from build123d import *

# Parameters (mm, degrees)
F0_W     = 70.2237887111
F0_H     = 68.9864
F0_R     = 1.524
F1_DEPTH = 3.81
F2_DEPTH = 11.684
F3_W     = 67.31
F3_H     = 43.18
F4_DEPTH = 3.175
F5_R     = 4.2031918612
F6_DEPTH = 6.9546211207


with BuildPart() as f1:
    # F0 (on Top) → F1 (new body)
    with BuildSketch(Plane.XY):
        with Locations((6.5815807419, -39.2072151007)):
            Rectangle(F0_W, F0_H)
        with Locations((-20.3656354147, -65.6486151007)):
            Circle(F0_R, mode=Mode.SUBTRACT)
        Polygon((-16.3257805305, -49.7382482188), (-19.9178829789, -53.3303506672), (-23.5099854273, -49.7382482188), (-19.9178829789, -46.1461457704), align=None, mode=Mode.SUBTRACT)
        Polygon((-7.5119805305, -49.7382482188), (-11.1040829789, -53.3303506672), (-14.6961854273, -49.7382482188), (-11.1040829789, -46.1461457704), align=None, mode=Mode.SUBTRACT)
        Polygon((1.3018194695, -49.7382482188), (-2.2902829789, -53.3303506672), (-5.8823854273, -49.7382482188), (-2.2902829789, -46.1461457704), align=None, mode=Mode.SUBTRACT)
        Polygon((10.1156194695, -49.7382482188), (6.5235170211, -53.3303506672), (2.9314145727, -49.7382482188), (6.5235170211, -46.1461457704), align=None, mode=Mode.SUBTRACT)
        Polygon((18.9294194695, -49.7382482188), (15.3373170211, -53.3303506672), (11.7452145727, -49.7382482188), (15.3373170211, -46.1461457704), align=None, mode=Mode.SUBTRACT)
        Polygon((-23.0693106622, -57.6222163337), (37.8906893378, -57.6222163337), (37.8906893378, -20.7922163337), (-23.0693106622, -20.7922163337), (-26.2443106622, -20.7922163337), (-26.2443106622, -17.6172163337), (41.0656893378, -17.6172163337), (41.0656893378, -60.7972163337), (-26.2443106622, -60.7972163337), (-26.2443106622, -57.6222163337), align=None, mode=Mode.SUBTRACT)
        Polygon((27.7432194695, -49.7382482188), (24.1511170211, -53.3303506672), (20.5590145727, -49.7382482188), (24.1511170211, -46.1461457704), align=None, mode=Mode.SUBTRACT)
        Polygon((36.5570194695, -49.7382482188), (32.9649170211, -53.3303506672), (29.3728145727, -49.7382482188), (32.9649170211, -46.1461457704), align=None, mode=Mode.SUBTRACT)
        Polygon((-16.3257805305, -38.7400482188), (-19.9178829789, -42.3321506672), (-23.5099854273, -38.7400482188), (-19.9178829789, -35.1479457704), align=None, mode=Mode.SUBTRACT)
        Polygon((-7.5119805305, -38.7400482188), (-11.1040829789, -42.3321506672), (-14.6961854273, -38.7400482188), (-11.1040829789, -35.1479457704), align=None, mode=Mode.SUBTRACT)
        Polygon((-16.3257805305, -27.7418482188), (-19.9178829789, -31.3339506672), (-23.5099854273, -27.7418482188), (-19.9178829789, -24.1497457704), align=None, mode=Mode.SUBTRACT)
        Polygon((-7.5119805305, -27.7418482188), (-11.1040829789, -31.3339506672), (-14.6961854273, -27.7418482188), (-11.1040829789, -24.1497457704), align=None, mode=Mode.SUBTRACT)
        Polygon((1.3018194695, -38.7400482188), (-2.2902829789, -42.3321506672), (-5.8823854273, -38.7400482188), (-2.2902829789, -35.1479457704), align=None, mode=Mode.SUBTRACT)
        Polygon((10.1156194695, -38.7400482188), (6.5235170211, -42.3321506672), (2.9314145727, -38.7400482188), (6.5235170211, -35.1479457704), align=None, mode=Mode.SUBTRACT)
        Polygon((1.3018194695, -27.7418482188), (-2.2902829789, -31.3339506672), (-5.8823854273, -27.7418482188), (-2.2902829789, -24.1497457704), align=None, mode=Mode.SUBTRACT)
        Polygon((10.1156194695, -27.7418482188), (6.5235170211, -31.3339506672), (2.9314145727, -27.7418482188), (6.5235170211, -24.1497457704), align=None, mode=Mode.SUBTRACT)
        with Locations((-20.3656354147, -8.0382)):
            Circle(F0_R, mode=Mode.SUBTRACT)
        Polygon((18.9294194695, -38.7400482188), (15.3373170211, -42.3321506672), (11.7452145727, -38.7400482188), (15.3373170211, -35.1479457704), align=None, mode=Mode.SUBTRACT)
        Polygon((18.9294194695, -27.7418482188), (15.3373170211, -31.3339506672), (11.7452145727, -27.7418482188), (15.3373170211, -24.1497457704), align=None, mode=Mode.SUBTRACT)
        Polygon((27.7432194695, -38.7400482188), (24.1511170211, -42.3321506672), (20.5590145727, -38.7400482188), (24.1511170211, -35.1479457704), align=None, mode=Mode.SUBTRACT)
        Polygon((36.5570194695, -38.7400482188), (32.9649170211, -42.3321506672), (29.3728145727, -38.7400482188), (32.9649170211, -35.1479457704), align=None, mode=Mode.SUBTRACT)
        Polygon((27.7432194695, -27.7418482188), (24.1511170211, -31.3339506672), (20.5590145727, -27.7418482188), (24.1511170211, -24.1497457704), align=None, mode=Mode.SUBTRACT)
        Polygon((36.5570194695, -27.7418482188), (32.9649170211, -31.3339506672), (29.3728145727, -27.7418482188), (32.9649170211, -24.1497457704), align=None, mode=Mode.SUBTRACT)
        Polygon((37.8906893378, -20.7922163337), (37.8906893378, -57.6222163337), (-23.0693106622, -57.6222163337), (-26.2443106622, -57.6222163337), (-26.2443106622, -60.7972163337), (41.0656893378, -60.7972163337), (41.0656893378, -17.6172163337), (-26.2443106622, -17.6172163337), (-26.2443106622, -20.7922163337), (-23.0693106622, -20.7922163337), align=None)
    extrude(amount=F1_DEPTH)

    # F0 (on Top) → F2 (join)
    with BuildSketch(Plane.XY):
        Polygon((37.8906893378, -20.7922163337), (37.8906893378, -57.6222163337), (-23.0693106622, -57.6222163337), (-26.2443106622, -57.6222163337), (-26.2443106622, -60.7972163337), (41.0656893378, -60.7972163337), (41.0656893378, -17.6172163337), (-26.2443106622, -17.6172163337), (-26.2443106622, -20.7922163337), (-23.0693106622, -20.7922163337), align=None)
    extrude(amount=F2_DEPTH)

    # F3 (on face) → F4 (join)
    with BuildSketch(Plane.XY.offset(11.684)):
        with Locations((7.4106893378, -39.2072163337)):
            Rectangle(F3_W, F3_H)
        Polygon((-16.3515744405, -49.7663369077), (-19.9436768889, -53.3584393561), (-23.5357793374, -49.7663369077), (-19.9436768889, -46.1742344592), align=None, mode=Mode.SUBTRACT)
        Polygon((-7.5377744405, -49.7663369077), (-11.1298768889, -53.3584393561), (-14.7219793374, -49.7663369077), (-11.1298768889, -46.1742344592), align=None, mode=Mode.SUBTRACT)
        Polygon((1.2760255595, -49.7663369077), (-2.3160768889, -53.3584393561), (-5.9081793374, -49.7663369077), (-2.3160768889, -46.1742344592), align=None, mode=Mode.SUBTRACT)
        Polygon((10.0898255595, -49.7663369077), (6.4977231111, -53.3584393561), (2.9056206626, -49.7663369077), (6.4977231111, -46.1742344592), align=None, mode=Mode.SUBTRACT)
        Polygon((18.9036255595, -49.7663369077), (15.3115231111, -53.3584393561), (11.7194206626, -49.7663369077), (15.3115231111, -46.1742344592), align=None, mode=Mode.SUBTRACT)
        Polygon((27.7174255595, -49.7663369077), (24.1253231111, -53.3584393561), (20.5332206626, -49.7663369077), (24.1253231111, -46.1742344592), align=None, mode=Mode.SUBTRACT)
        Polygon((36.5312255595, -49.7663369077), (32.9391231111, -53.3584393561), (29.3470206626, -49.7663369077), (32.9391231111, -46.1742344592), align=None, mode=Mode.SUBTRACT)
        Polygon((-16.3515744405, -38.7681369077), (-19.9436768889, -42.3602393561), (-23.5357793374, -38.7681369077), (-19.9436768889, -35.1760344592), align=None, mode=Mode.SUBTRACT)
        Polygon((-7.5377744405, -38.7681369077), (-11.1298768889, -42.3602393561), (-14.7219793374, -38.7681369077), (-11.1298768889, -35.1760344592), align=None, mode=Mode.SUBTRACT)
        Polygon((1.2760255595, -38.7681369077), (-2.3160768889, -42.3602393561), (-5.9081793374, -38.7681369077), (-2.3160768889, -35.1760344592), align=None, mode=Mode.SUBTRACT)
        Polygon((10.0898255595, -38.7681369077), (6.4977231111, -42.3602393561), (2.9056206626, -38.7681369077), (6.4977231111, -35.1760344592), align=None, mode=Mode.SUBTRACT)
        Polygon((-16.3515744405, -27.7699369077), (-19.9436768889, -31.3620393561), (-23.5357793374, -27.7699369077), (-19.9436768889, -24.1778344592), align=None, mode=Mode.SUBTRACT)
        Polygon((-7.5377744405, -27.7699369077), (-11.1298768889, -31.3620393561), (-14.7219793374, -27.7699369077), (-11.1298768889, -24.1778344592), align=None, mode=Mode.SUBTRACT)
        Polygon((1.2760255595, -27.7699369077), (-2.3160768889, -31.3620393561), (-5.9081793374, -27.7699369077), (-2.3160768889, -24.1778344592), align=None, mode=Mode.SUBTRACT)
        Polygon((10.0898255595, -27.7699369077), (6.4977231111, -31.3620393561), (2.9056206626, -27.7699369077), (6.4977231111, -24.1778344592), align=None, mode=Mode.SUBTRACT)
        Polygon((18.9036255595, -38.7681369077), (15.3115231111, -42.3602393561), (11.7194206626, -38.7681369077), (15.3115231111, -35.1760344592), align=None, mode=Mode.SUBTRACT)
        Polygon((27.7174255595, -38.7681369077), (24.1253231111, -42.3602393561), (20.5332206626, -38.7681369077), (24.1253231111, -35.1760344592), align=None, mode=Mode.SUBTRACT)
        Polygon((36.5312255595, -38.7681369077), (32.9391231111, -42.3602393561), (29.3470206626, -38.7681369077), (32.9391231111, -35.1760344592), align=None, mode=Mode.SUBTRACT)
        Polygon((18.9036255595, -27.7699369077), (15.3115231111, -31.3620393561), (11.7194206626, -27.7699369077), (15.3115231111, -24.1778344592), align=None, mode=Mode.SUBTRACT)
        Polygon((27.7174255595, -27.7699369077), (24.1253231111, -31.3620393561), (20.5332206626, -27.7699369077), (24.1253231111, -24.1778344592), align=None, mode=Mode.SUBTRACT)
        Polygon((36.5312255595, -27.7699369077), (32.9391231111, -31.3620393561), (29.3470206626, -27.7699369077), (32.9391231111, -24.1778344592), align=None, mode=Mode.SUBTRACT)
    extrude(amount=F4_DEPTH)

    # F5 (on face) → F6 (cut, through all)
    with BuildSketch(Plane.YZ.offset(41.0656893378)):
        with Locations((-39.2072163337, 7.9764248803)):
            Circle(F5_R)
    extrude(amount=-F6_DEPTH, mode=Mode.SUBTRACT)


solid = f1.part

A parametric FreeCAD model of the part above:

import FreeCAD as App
import Part
import Sketcher

V = App.Vector
Q = App.Units.Quantity


def add_polygon(sketch, points):
    """Adds a closed chain of lines whose ends are joined by coincident constraints."""
    first, n = sketch.GeometryCount, len(points)
    for a, b in zip(points, points[1:] + points[:1]):
        sketch.addGeometry(Part.LineSegment(App.Vector(*a, 0), App.Vector(*b, 0)), False)
    for i in range(n):
        sketch.addConstraint(Sketcher.Constraint("Coincident", first + i, 2, first + (i + 1) % n, 1))

doc = App.newDocument("Part")
body = doc.addObject("PartDesign::Body", "Body")

# Sketch on XY plane
sketch1 = body.newObject("Sketcher::SketchObject", "Sketch")
sketch1.AttachmentSupport = (doc.getObject("XY_Plane"), [""])
sketch1.MapMode = "FlatFace"
add_polygon(sketch1, [(-28.5, -4.7), (-28.5, -73.7), (41.7, -73.7), (41.7, -4.7)])  # lines 0-3
sketch1.addGeometry(Part.Circle(V(-20.4, -65.6, 0), V(0, 0, 1), 1.5), False)  # 4
add_polygon(sketch1, [(-19.9, -46.1), (-16.3, -49.7), (-19.9, -53.3), (-23.5, -49.7)])  # lines 5-8
add_polygon(sketch1, [(-11.1, -46.1), (-7.5, -49.7), (-11.1, -53.3), (-14.7, -49.7)])  # lines 9-12
add_polygon(sketch1, [(-19.9, -35.1), (-16.3, -38.7), (-19.9, -42.3), (-23.5, -38.7)])  # lines 13-16
add_polygon(sketch1, [(-11.1, -35.1), (-7.5, -38.7), (-11.1, -42.3), (-14.7, -38.7)])  # lines 17-20
add_polygon(sketch1, [(-2.3, -46.1), (1.3, -49.7), (-2.3, -53.3), (-5.9, -49.7)])  # lines 21-24
add_polygon(sketch1, [(6.5, -46.1), (10.1, -49.7), (6.5, -53.3), (2.9, -49.7)])  # lines 25-28
add_polygon(sketch1, [(-2.3, -35.1), (1.3, -38.7), (-2.3, -42.3), (-5.9, -38.7)])  # lines 29-32
add_polygon(sketch1, [(6.5, -35.1), (10.1, -38.7), (6.5, -42.3), (2.9, -38.7)])  # lines 33-36
add_polygon(sketch1, [(15.3, -46.1), (18.9, -49.7), (15.3, -53.3), (11.7, -49.7)])  # lines 37-40
add_polygon(sketch1, [(24.2, -46.1), (27.7, -49.7), (24.2, -53.3), (20.6, -49.7)])  # lines 41-44
add_polygon(sketch1, [(15.3, -35.1), (18.9, -38.7), (15.3, -42.3), (11.7, -38.7)])  # lines 45-48
add_polygon(sketch1, [(24.2, -35.1), (27.7, -38.7), (24.2, -42.3), (20.6, -38.7)])  # lines 49-52
add_polygon(sketch1, [(33, -46.1), (36.6, -49.7), (33, -53.3), (29.4, -49.7)])  # lines 53-56
add_polygon(sketch1, [(33, -35.1), (36.6, -38.7), (33, -42.3), (29.4, -38.7)])  # lines 57-60
add_polygon(sketch1, [(-19.9, -24.1), (-16.3, -27.7), (-19.9, -31.3), (-23.5, -27.7)])  # lines 61-64
add_polygon(sketch1, [(-11.1, -24.1), (-7.5, -27.7), (-11.1, -31.3), (-14.7, -27.7)])  # lines 65-68
add_polygon(sketch1, [(-2.3, -24.1), (1.3, -27.7), (-2.3, -31.3), (-5.9, -27.7)])  # lines 69-72
add_polygon(sketch1, [(6.5, -24.1), (10.1, -27.7), (6.5, -31.3), (2.9, -27.7)])  # lines 73-76
sketch1.addGeometry(Part.Circle(V(-20.4, -8, 0), V(0, 0, 1), 1.5), False)  # 77
add_polygon(sketch1, [(15.3, -24.1), (18.9, -27.7), (15.3, -31.3), (11.7, -27.7)])  # lines 78-81
add_polygon(sketch1, [(24.2, -24.1), (27.7, -27.7), (24.2, -31.3), (20.6, -27.7)])  # lines 82-85
add_polygon(sketch1, [(33, -24.1), (36.6, -27.7), (33, -31.3), (29.4, -27.7)])  # lines 86-89
sketch1.addConstraint([
    Sketcher.Constraint("Vertical", 0),
    Sketcher.Constraint("Horizontal", 1),
    Sketcher.Constraint("Vertical", 2),
    Sketcher.Constraint("Horizontal", 3),
    Sketcher.Constraint("Equal", 4, 77),
    Sketcher.Constraint("Perpendicular", 5, 6),
    Sketcher.Constraint("Perpendicular", 6, 7),
    Sketcher.Constraint("Perpendicular", 7, 8),
    Sketcher.Constraint("Perpendicular", 8, 9),
    Sketcher.Constraint("Perpendicular", 9, 10),
    Sketcher.Constraint("Perpendicular", 10, 11),
    Sketcher.Constraint("Perpendicular", 11, 12),
    Sketcher.Constraint("Perpendicular", 12, 13),
    Sketcher.Constraint("Perpendicular", 13, 14),
    Sketcher.Constraint("Perpendicular", 14, 15),
    Sketcher.Constraint("Perpendicular", 15, 16),
    Sketcher.Constraint("Perpendicular", 16, 17),
    Sketcher.Constraint("Perpendicular", 17, 18),
    Sketcher.Constraint("Perpendicular", 18, 19),
    Sketcher.Constraint("Perpendicular", 19, 20),
    Sketcher.Constraint("Perpendicular", 20, 21),
    Sketcher.Constraint("Perpendicular", 21, 22),
    Sketcher.Constraint("Perpendicular", 22, 23),
    Sketcher.Constraint("Perpendicular", 23, 24),
    Sketcher.Constraint("Perpendicular", 24, 25),
    Sketcher.Constraint("Perpendicular", 25, 26),
    Sketcher.Constraint("Perpendicular", 26, 27),
    Sketcher.Constraint("Perpendicular", 27, 28),
    Sketcher.Constraint("Perpendicular", 28, 29),
    Sketcher.Constraint("Perpendicular", 29, 30),
    Sketcher.Constraint("Perpendicular", 30, 31),
    Sketcher.Constraint("Perpendicular", 31, 32),
    Sketcher.Constraint("Perpendicular", 32, 33),
    Sketcher.Constraint("Perpendicular", 33, 34),
    Sketcher.Constraint("Perpendicular", 34, 35),
    Sketcher.Constraint("Perpendicular", 35, 36),
    Sketcher.Constraint("Perpendicular", 36, 37),
    Sketcher.Constraint("Perpendicular", 37, 38),
    Sketcher.Constraint("Perpendicular", 38, 39),
    Sketcher.Constraint("Perpendicular", 39, 40),
    Sketcher.Constraint("Perpendicular", 40, 41),
    Sketcher.Constraint("Perpendicular", 41, 42),
    Sketcher.Constraint("Perpendicular", 42, 43),
    Sketcher.Constraint("Perpendicular", 43, 44),
    Sketcher.Constraint("Perpendicular", 44, 45),
    Sketcher.Constraint("Perpendicular", 45, 46),
    Sketcher.Constraint("Perpendicular", 46, 47),
    Sketcher.Constraint("Perpendicular", 47, 48),
    Sketcher.Constraint("Perpendicular", 48, 49),
    Sketcher.Constraint("Perpendicular", 49, 50),
    Sketcher.Constraint("Perpendicular", 50, 51),
    Sketcher.Constraint("Perpendicular", 51, 52),
    Sketcher.Constraint("Perpendicular", 52, 53),
    Sketcher.Constraint("Perpendicular", 53, 54),
    Sketcher.Constraint("Perpendicular", 54, 55),
    Sketcher.Constraint("Perpendicular", 55, 56),
    Sketcher.Constraint("Perpendicular", 56, 57),
    Sketcher.Constraint("Perpendicular", 57, 58),
    Sketcher.Constraint("Perpendicular", 58, 59),
    Sketcher.Constraint("Perpendicular", 59, 60),
    Sketcher.Constraint("Perpendicular", 60, 61),
    Sketcher.Constraint("Perpendicular", 61, 62),
    Sketcher.Constraint("Perpendicular", 62, 63),
    Sketcher.Constraint("Perpendicular", 63, 64),
    Sketcher.Constraint("Perpendicular", 64, 65),
    Sketcher.Constraint("Perpendicular", 65, 66),
    Sketcher.Constraint("Perpendicular", 66, 67),
    Sketcher.Constraint("Perpendicular", 67, 68),
    Sketcher.Constraint("Perpendicular", 68, 69),
    Sketcher.Constraint("Perpendicular", 69, 70),
    Sketcher.Constraint("Perpendicular", 70, 71),
    Sketcher.Constraint("Perpendicular", 71, 72),
    Sketcher.Constraint("Perpendicular", 72, 73),
    Sketcher.Constraint("Perpendicular", 73, 74),
    Sketcher.Constraint("Perpendicular", 74, 75),
    Sketcher.Constraint("Perpendicular", 75, 76),
    Sketcher.Constraint("Perpendicular", 76, 78),
    Sketcher.Constraint("Perpendicular", 78, 79),
    Sketcher.Constraint("Perpendicular", 79, 80),
    Sketcher.Constraint("Perpendicular", 80, 81),
    Sketcher.Constraint("Perpendicular", 81, 82),
    Sketcher.Constraint("Perpendicular", 82, 83),
    Sketcher.Constraint("Perpendicular", 83, 84),
    Sketcher.Constraint("Perpendicular", 84, 85),
    Sketcher.Constraint("Perpendicular", 85, 86),
    Sketcher.Constraint("Perpendicular", 86, 87),
    Sketcher.Constraint("Perpendicular", 87, 88),
    Sketcher.Constraint("Perpendicular", 88, 89),
    Sketcher.Constraint("Horizontal", 5, 2, 7, 2),
    Sketcher.Constraint("Horizontal", 7, 2, 9, 2),
    Sketcher.Constraint("Horizontal", 6, 2, 10, 2),
    Sketcher.Constraint("Horizontal", 9, 2, 11, 2),
    Sketcher.Constraint("Horizontal", 13, 2, 15, 2),
    Sketcher.Constraint("Horizontal", 15, 2, 17, 2),
    Sketcher.Constraint("Horizontal", 14, 2, 18, 2),
    Sketcher.Constraint("Horizontal", 17, 2, 19, 2),
    Sketcher.Constraint("Horizontal", 11, 2, 21, 2),
    Sketcher.Constraint("Horizontal", 10, 2, 22, 2),
    Sketcher.Constraint("Horizontal", 21, 2, 23, 2),
    Sketcher.Constraint("Horizontal", 23, 2, 25, 2),
    Sketcher.Constraint("Horizontal", 22, 2, 26, 2),
    Sketcher.Constraint("Horizontal", 25, 2, 27, 2),
    Sketcher.Constraint("Horizontal", 19, 2, 29, 2),
    Sketcher.Constraint("Horizontal", 18, 2, 30, 2),
    Sketcher.Constraint("Horizontal", 29, 2, 31, 2),
    Sketcher.Constraint("Horizontal", 31, 2, 33, 2),
    Sketcher.Constraint("Horizontal", 30, 2, 34, 2),
    Sketcher.Constraint("Horizontal", 33, 2, 35, 2),
    Sketcher.Constraint("Horizontal", 27, 2, 37, 2),
    Sketcher.Constraint("Horizontal", 26, 2, 38, 2),
    Sketcher.Constraint("Horizontal", 37, 2, 39, 2),
    Sketcher.Constraint("Horizontal", 39, 2, 41, 2),
    Sketcher.Constraint("Horizontal", 38, 2, 42, 2),
    Sketcher.Constraint("Horizontal", 41, 2, 43, 2),
    Sketcher.Constraint("Horizontal", 35, 2, 45, 2),
    Sketcher.Constraint("Horizontal", 34, 2, 46, 2),
    Sketcher.Constraint("Horizontal", 45, 2, 47, 2),
    Sketcher.Constraint("Horizontal", 47, 2, 49, 2),
    Sketcher.Constraint("Horizontal", 46, 2, 50, 2),
    Sketcher.Constraint("Horizontal", 49, 2, 51, 2),
    Sketcher.Constraint("Horizontal", 43, 2, 53, 2),
    Sketcher.Constraint("Horizontal", 42, 2, 54, 2),
    Sketcher.Constraint("Horizontal", 53, 2, 55, 2),
    Sketcher.Constraint("Horizontal", 51, 2, 57, 2),
    Sketcher.Constraint("Horizontal", 50, 2, 58, 2),
    Sketcher.Constraint("Horizontal", 57, 2, 59, 2),
    Sketcher.Constraint("Horizontal", 61, 2, 63, 2),
    Sketcher.Constraint("Horizontal", 63, 2, 65, 2),
    Sketcher.Constraint("Horizontal", 62, 2, 66, 2),
    Sketcher.Constraint("Horizontal", 65, 2, 67, 2),
    Sketcher.Constraint("Horizontal", 67, 2, 69, 2),
    Sketcher.Constraint("Horizontal", 66, 2, 70, 2),
    Sketcher.Constraint("Horizontal", 69, 2, 71, 2),
    Sketcher.Constraint("Horizontal", 71, 2, 73, 2),
    Sketcher.Constraint("Horizontal", 70, 2, 74, 2),
    Sketcher.Constraint("Horizontal", 73, 2, 75, 2),
    Sketcher.Constraint("Horizontal", 75, 2, 78, 2),
    Sketcher.Constraint("Horizontal", 74, 2, 79, 2),
    Sketcher.Constraint("Horizontal", 78, 2, 80, 2),
    Sketcher.Constraint("Horizontal", 80, 2, 82, 2),
    Sketcher.Constraint("Horizontal", 79, 2, 83, 2),
    Sketcher.Constraint("Horizontal", 82, 2, 84, 2),
    Sketcher.Constraint("Horizontal", 84, 2, 86, 2),
    Sketcher.Constraint("Horizontal", 83, 2, 87, 2),
    Sketcher.Constraint("Horizontal", 86, 2, 88, 2),
    Sketcher.Constraint("Vertical", 4, 3, 77, 3),
    Sketcher.Constraint("Vertical", 6, 2, 8, 2),
    Sketcher.Constraint("Vertical", 5, 2, 13, 2),
    Sketcher.Constraint("Vertical", 8, 2, 14, 2),
    Sketcher.Constraint("Vertical", 9, 2, 17, 2),
    Sketcher.Constraint("Vertical", 21, 2, 29, 2),
    Sketcher.Constraint("Vertical", 25, 2, 33, 2),
    Sketcher.Constraint("Vertical", 37, 2, 45, 2),
    Sketcher.Constraint("Vertical", 41, 2, 49, 2),
    Sketcher.Constraint("Vertical", 53, 2, 57, 2),
    Sketcher.Constraint("Vertical", 13, 2, 61, 2),
    Sketcher.Constraint("Vertical", 16, 2, 62, 2),
    Sketcher.Constraint("Vertical", 17, 2, 65, 2),
    Sketcher.Constraint("Vertical", 29, 2, 69, 2),
    Sketcher.Constraint("Vertical", 33, 2, 73, 2),
    Sketcher.Constraint("Vertical", 45, 2, 78, 2),
    Sketcher.Constraint("Vertical", 49, 2, 82, 2),
    Sketcher.Constraint("Vertical", 57, 2, 86, 2),
    Sketcher.Constraint("Diameter", 4, Q("0.12 in")),
    Sketcher.Constraint("Distance", 5, Q("0.2 in")),
    Sketcher.Constraint("DistanceY", 0, 2, 0, 1, Q("2.716 in")),
    Sketcher.Constraint("DistanceX", 1, 1, 1, 2, Q("70.223789 mm")),
    Sketcher.Constraint("DistanceY", 77, 3, -1, 1, Q("8.0382 mm")),
    Sketcher.Constraint("DistanceX", 5, 2, -1, 1, Q("16.325781 mm")),
    Sketcher.Constraint("DistanceY", 5, 2, -1, 1, Q("49.738248 mm")),
    Sketcher.Constraint("DistanceX", 9, 2, -1, 1, Q("7.511981 mm")),
    Sketcher.Constraint("DistanceY", 13, 2, -1, 1, Q("38.740048 mm")),
    Sketcher.Constraint("DistanceX", -1, 1, 21, 2, Q("1.301819 mm")),
    Sketcher.Constraint("DistanceX", -1, 1, 25, 2, Q("10.115619 mm")),
    Sketcher.Constraint("DistanceX", -1, 1, 37, 2, Q("18.929419 mm")),
    Sketcher.Constraint("DistanceX", -1, 1, 41, 2, Q("27.743219 mm")),
    Sketcher.Constraint("DistanceX", -1, 1, 53, 2, Q("36.557019 mm")),
    Sketcher.Constraint("DistanceY", 61, 2, -1, 1, Q("27.741848 mm")),
    Sketcher.Constraint("DistanceX", 4, 3, -1, 1, Q("20.365635 mm")),
    Sketcher.Constraint("DistanceY", 4, 3, -1, 1, Q("65.648615 mm")),
    Sketcher.Constraint("DistanceX", 0, 2, -1, 1, Q("28.530314 mm")),
    Sketcher.Constraint("DistanceY", 0, 2, -1, 1, Q("73.700415 mm")),
])
pad1 = body.newObject("PartDesign::Pad", "Pad")
pad1.Profile = sketch1
pad1.Length = Q("0.15 in")

# Sketch on XY plane
sketch2 = body.newObject("Sketcher::SketchObject", "Sketch001")
sketch2.AttachmentSupport = (doc.getObject("XY_Plane"), [""])
sketch2.MapMode = "FlatFace"
add_polygon(sketch2, [(37.9, -20.8), (37.9, -57.6), (-26.2, -57.6), (-26.2, -60.8), (41.1, -60.8), (41.1, -17.6), (-26.2, -17.6), (-26.2, -20.8)])  # lines 0-7
sketch2.addConstraint([
    Sketcher.Constraint("Vertical", 0),
    Sketcher.Constraint("Horizontal", 1),
    Sketcher.Constraint("Vertical", 2),
    Sketcher.Constraint("Horizontal", 3),
    Sketcher.Constraint("Vertical", 4),
    Sketcher.Constraint("Horizontal", 5),
    Sketcher.Constraint("Vertical", 6),
    Sketcher.Constraint("Horizontal", 7),
    Sketcher.Constraint("Vertical", 2, 2, 5, 2),
    Sketcher.Constraint("Equal", 2, 6),
    Sketcher.Constraint("DistanceY", 4, 1, 4, 2, Q("1.7 in")),
    Sketcher.Constraint("DistanceX", 3, 1, 3, 2, Q("2.65 in")),
    Sketcher.Constraint("DistanceY", 0, 2, 0, 1, Q("1.45 in")),
    Sketcher.Constraint("DistanceX", 1, 2, 1, 1, Q("2.525 in")),
    Sketcher.Constraint("DistanceX", -1, 1, 0, 2, Q("37.890689 mm")),
    Sketcher.Constraint("DistanceY", 0, 2, -1, 1, Q("57.622216 mm")),
])
pad2 = body.newObject("PartDesign::Pad", "Pad001")
pad2.Profile = sketch2
pad2.Length = Q("0.46 in")

# Sketch on XY plane
sketch3 = body.newObject("Sketcher::SketchObject", "Sketch002")
sketch3.AttachmentSupport = (doc.getObject("XY_Plane"), [""])
sketch3.MapMode = "FlatFace"
sketch3.AttachmentOffset = App.Placement(V(0, 0, 0.46 * 25.4), App.Rotation())
add_polygon(sketch3, [(-26, -18), (-26, -61), (41, -61), (41, -18)])  # lines 0-3
add_polygon(sketch3, [(-20, -46), (-16, -50), (-20, -53), (-24, -50)])  # lines 4-7
add_polygon(sketch3, [(-11, -46), (-8, -50), (-11, -53), (-15, -50)])  # lines 8-11
add_polygon(sketch3, [(-2, -46), (1, -50), (-2, -53), (-6, -50)])  # lines 12-15
add_polygon(sketch3, [(6, -46), (10, -50), (6, -53), (3, -50)])  # lines 16-19
add_polygon(sketch3, [(15, -46), (19, -50), (15, -53), (12, -50)])  # lines 20-23
add_polygon(sketch3, [(24, -46), (28, -50), (24, -53), (21, -50)])  # lines 24-27
add_polygon(sketch3, [(33, -46), (37, -50), (33, -53), (29, -50)])  # lines 28-31
add_polygon(sketch3, [(-20, -35), (-16, -39), (-20, -42), (-24, -39)])  # lines 32-35
add_polygon(sketch3, [(-11, -35), (-8, -39), (-11, -42), (-15, -39)])  # lines 36-39
add_polygon(sketch3, [(-2, -35), (1, -39), (-2, -42), (-6, -39)])  # lines 40-43
add_polygon(sketch3, [(-20, -24), (-16, -28), (-20, -31), (-24, -28)])  # lines 44-47
add_polygon(sketch3, [(-11, -24), (-8, -28), (-11, -31), (-15, -28)])  # lines 48-51
add_polygon(sketch3, [(-2, -24), (1, -28), (-2, -31), (-6, -28)])  # lines 52-55
add_polygon(sketch3, [(6, -35), (10, -39), (6, -42), (3, -39)])  # lines 56-59
add_polygon(sketch3, [(15, -35), (19, -39), (15, -42), (12, -39)])  # lines 60-63
add_polygon(sketch3, [(24, -35), (28, -39), (24, -42), (21, -39)])  # lines 64-67
add_polygon(sketch3, [(33, -35), (37, -39), (33, -42), (29, -39)])  # lines 68-71
add_polygon(sketch3, [(6, -24), (10, -28), (6, -31), (3, -28)])  # lines 72-75
add_polygon(sketch3, [(15, -24), (19, -28), (15, -31), (12, -28)])  # lines 76-79
add_polygon(sketch3, [(24, -24), (28, -28), (24, -31), (21, -28)])  # lines 80-83
add_polygon(sketch3, [(33, -24), (37, -28), (33, -31), (29, -28)])  # lines 84-87
sketch3.addConstraint([
    Sketcher.Constraint("Vertical", 0),
    Sketcher.Constraint("Horizontal", 1),
    Sketcher.Constraint("Vertical", 2),
    Sketcher.Constraint("Horizontal", 3),
    Sketcher.Constraint("Perpendicular", 4, 5),
    Sketcher.Constraint("Perpendicular", 5, 6),
    Sketcher.Constraint("Perpendicular", 6, 7),
    Sketcher.Constraint("Perpendicular", 7, 8),
    Sketcher.Constraint("Perpendicular", 8, 9),
    Sketcher.Constraint("Perpendicular", 9, 10),
    Sketcher.Constraint("Perpendicular", 10, 11),
    Sketcher.Constraint("Perpendicular", 11, 12),
    Sketcher.Constraint("Perpendicular", 12, 13),
    Sketcher.Constraint("Perpendicular", 13, 14),
    Sketcher.Constraint("Perpendicular", 14, 15),
    Sketcher.Constraint("Perpendicular", 15, 16),
    Sketcher.Constraint("Perpendicular", 16, 17),
    Sketcher.Constraint("Perpendicular", 17, 18),
    Sketcher.Constraint("Perpendicular", 18, 19),
    Sketcher.Constraint("Perpendicular", 19, 20),
    Sketcher.Constraint("Perpendicular", 20, 21),
    Sketcher.Constraint("Perpendicular", 21, 22),
    Sketcher.Constraint("Perpendicular", 22, 23),
    Sketcher.Constraint("Perpendicular", 23, 24),
    Sketcher.Constraint("Perpendicular", 24, 25),
    Sketcher.Constraint("Perpendicular", 25, 26),
    Sketcher.Constraint("Perpendicular", 26, 27),
    Sketcher.Constraint("Perpendicular", 27, 28),
    Sketcher.Constraint("Perpendicular", 28, 29),
    Sketcher.Constraint("Perpendicular", 29, 30),
    Sketcher.Constraint("Perpendicular", 30, 31),
    Sketcher.Constraint("Perpendicular", 31, 32),
    Sketcher.Constraint("Perpendicular", 32, 33),
    Sketcher.Constraint("Perpendicular", 33, 34),
    Sketcher.Constraint("Perpendicular", 34, 35),
    Sketcher.Constraint("Perpendicular", 35, 36),
    Sketcher.Constraint("Perpendicular", 36, 37),
    Sketcher.Constraint("Perpendicular", 37, 38),
    Sketcher.Constraint("Perpendicular", 38, 39),
    Sketcher.Constraint("Perpendicular", 39, 40),
    Sketcher.Constraint("Perpendicular", 40, 41),
    Sketcher.Constraint("Perpendicular", 41, 42),
    Sketcher.Constraint("Perpendicular", 42, 43),
    Sketcher.Constraint("Perpendicular", 43, 44),
    Sketcher.Constraint("Perpendicular", 44, 45),
    Sketcher.Constraint("Perpendicular", 45, 46),
    Sketcher.Constraint("Perpendicular", 46, 47),
    Sketcher.Constraint("Perpendicular", 47, 48),
    Sketcher.Constraint("Perpendicular", 48, 49),
    Sketcher.Constraint("Perpendicular", 49, 50),
    Sketcher.Constraint("Perpendicular", 50, 51),
    Sketcher.Constraint("Perpendicular", 51, 52),
    Sketcher.Constraint("Perpendicular", 52, 53),
    Sketcher.Constraint("Perpendicular", 53, 54),
    Sketcher.Constraint("Perpendicular", 54, 55),
    Sketcher.Constraint("Perpendicular", 55, 56),
    Sketcher.Constraint("Perpendicular", 56, 57),
    Sketcher.Constraint("Perpendicular", 57, 58),
    Sketcher.Constraint("Perpendicular", 58, 59),
    Sketcher.Constraint("Perpendicular", 59, 60),
    Sketcher.Constraint("Perpendicular", 60, 61),
    Sketcher.Constraint("Perpendicular", 61, 62),
    Sketcher.Constraint("Perpendicular", 62, 63),
    Sketcher.Constraint("Perpendicular", 63, 64),
    Sketcher.Constraint("Perpendicular", 64, 65),
    Sketcher.Constraint("Perpendicular", 65, 66),
    Sketcher.Constraint("Perpendicular", 66, 67),
    Sketcher.Constraint("Perpendicular", 67, 68),
    Sketcher.Constraint("Perpendicular", 68, 69),
    Sketcher.Constraint("Perpendicular", 69, 70),
    Sketcher.Constraint("Perpendicular", 70, 71),
    Sketcher.Constraint("Perpendicular", 71, 72),
    Sketcher.Constraint("Perpendicular", 72, 73),
    Sketcher.Constraint("Perpendicular", 73, 74),
    Sketcher.Constraint("Perpendicular", 74, 75),
    Sketcher.Constraint("Perpendicular", 75, 76),
    Sketcher.Constraint("Perpendicular", 76, 77),
    Sketcher.Constraint("Perpendicular", 77, 78),
    Sketcher.Constraint("Perpendicular", 78, 79),
    Sketcher.Constraint("Perpendicular", 79, 80),
    Sketcher.Constraint("Perpendicular", 80, 81),
    Sketcher.Constraint("Perpendicular", 81, 82),
    Sketcher.Constraint("Perpendicular", 82, 83),
    Sketcher.Constraint("Perpendicular", 83, 84),
    Sketcher.Constraint("Perpendicular", 84, 85),
    Sketcher.Constraint("Perpendicular", 85, 86),
    Sketcher.Constraint("Perpendicular", 86, 87),
    Sketcher.Constraint("Horizontal", 4, 2, 6, 2),
    Sketcher.Constraint("Horizontal", 6, 2, 8, 2),
    Sketcher.Constraint("Horizontal", 5, 2, 9, 2),
    Sketcher.Constraint("Horizontal", 8, 2, 10, 2),
    Sketcher.Constraint("Horizontal", 10, 2, 12, 2),
    Sketcher.Constraint("Horizontal", 9, 2, 13, 2),
    Sketcher.Constraint("Horizontal", 12, 2, 14, 2),
    Sketcher.Constraint("Horizontal", 14, 2, 16, 2),
    Sketcher.Constraint("Horizontal", 13, 2, 17, 2),
    Sketcher.Constraint("Horizontal", 16, 2, 18, 2),
    Sketcher.Constraint("Horizontal", 18, 2, 20, 2),
    Sketcher.Constraint("Horizontal", 17, 2, 21, 2),
    Sketcher.Constraint("Horizontal", 20, 2, 22, 2),
    Sketcher.Constraint("Horizontal", 22, 2, 24, 2),
    Sketcher.Constraint("Horizontal", 21, 2, 25, 2),
    Sketcher.Constraint("Horizontal", 24, 2, 26, 2),
    Sketcher.Constraint("Horizontal", 26, 2, 28, 2),
    Sketcher.Constraint("Horizontal", 25, 2, 29, 2),
    Sketcher.Constraint("Horizontal", 28, 2, 30, 2),
    Sketcher.Constraint("Horizontal", 32, 2, 34, 2),
    Sketcher.Constraint("Horizontal", 34, 2, 36, 2),
    Sketcher.Constraint("Horizontal", 33, 2, 37, 2),
    Sketcher.Constraint("Horizontal", 36, 2, 38, 2),
    Sketcher.Constraint("Horizontal", 38, 2, 40, 2),
    Sketcher.Constraint("Horizontal", 37, 2, 41, 2),
    Sketcher.Constraint("Horizontal", 40, 2, 42, 2),
    Sketcher.Constraint("Horizontal", 44, 2, 46, 2),
    Sketcher.Constraint("Horizontal", 46, 2, 48, 2),
    Sketcher.Constraint("Horizontal", 45, 2, 49, 2),
    Sketcher.Constraint("Horizontal", 48, 2, 50, 2),
    Sketcher.Constraint("Horizontal", 50, 2, 52, 2),
    Sketcher.Constraint("Horizontal", 49, 2, 53, 2),
    Sketcher.Constraint("Horizontal", 52, 2, 54, 2),
    Sketcher.Constraint("Horizontal", 42, 2, 56, 2),
    Sketcher.Constraint("Horizontal", 41, 2, 57, 2),
    Sketcher.Constraint("Horizontal", 56, 2, 58, 2),
    Sketcher.Constraint("Horizontal", 58, 2, 60, 2),
    Sketcher.Constraint("Horizontal", 57, 2, 61, 2),
    Sketcher.Constraint("Horizontal", 60, 2, 62, 2),
    Sketcher.Constraint("Horizontal", 62, 2, 64, 2),
    Sketcher.Constraint("Horizontal", 61, 2, 65, 2),
    Sketcher.Constraint("Horizontal", 64, 2, 66, 2),
    Sketcher.Constraint("Horizontal", 66, 2, 68, 2),
    Sketcher.Constraint("Horizontal", 65, 2, 69, 2),
    Sketcher.Constraint("Horizontal", 68, 2, 70, 2),
    Sketcher.Constraint("Horizontal", 54, 2, 72, 2),
    Sketcher.Constraint("Horizontal", 53, 2, 73, 2),
    Sketcher.Constraint("Horizontal", 72, 2, 74, 2),
    Sketcher.Constraint("Horizontal", 74, 2, 76, 2),
    Sketcher.Constraint("Horizontal", 73, 2, 77, 2),
    Sketcher.Constraint("Horizontal", 76, 2, 78, 2),
    Sketcher.Constraint("Horizontal", 78, 2, 80, 2),
    Sketcher.Constraint("Horizontal", 77, 2, 81, 2),
    Sketcher.Constraint("Horizontal", 80, 2, 82, 2),
    Sketcher.Constraint("Horizontal", 82, 2, 84, 2),
    Sketcher.Constraint("Horizontal", 81, 2, 85, 2),
    Sketcher.Constraint("Horizontal", 84, 2, 86, 2),
    Sketcher.Constraint("Vertical", 5, 2, 7, 2),
    Sketcher.Constraint("Vertical", 4, 2, 32, 2),
    Sketcher.Constraint("Vertical", 7, 2, 33, 2),
    Sketcher.Constraint("Vertical", 8, 2, 36, 2),
    Sketcher.Constraint("Vertical", 12, 2, 40, 2),
    Sketcher.Constraint("Vertical", 32, 2, 44, 2),
    Sketcher.Constraint("Vertical", 35, 2, 45, 2),
    Sketcher.Constraint("Vertical", 36, 2, 48, 2),
    Sketcher.Constraint("Vertical", 40, 2, 52, 2),
    Sketcher.Constraint("Vertical", 16, 2, 56, 2),
    Sketcher.Constraint("Vertical", 20, 2, 60, 2),
    Sketcher.Constraint("Vertical", 24, 2, 64, 2),
    Sketcher.Constraint("Vertical", 28, 2, 68, 2),
    Sketcher.Constraint("Vertical", 56, 2, 72, 2),
    Sketcher.Constraint("Vertical", 60, 2, 76, 2),
    Sketcher.Constraint("Vertical", 64, 2, 80, 2),
    Sketcher.Constraint("Vertical", 68, 2, 84, 2),
    Sketcher.Constraint("DistanceY", 0, 2, 0, 1, Q("1.7 in")),
    Sketcher.Constraint("Distance", 4, Q("0.2 in")),
    Sketcher.Constraint("DistanceX", 1, 1, 1, 2, Q("2.65 in")),
    Sketcher.Constraint("DistanceX", 0, 2, -1, 1, Q("26.244311 mm")),
    Sketcher.Constraint("DistanceY", 5, 2, -1, 1, Q("53.358439 mm")),
    Sketcher.Constraint("DistanceX", 6, 2, -1, 1, Q("23.535779 mm")),
    Sketcher.Constraint("DistanceX", 10, 2, -1, 1, Q("14.721979 mm")),
    Sketcher.Constraint("DistanceX", 14, 2, -1, 1, Q("5.908179 mm")),
    Sketcher.Constraint("DistanceX", -1, 1, 18, 2, Q("2.905621 mm")),
    Sketcher.Constraint("DistanceX", -1, 1, 22, 2, Q("11.719421 mm")),
    Sketcher.Constraint("DistanceX", -1, 1, 26, 2, Q("20.533221 mm")),
    Sketcher.Constraint("DistanceX", -1, 1, 30, 2, Q("29.347021 mm")),
    Sketcher.Constraint("DistanceY", 33, 2, -1, 1, Q("42.360239 mm")),
    Sketcher.Constraint("DistanceY", 45, 2, -1, 1, Q("31.362039 mm")),
    Sketcher.Constraint("DistanceY", 0, 2, -1, 1, Q("60.797216 mm")),
])
pad3 = body.newObject("PartDesign::Pad", "Pad002")
pad3.Profile = sketch3
pad3.Length = Q("0.125 in")

# Sketch on YZ plane
sketch4 = body.newObject("Sketcher::SketchObject", "Sketch003")
sketch4.AttachmentSupport = (doc.getObject("YZ_Plane"), [""])
sketch4.MapMode = "FlatFace"
sketch4.AttachmentOffset = App.Placement(V(0, 0, 41.065689), App.Rotation())
sketch4.addGeometry(Part.Circle(V(-39.2, 8, 0), V(0, 0, 1), 4.2), False)
sketch4.addConstraint([
    Sketcher.Constraint("Diameter", 0, Q("8.406384 mm")),
    Sketcher.Constraint("DistanceX", 0, 3, -1, 1, Q("39.207216 mm")),
    Sketcher.Constraint("DistanceY", -1, 1, 0, 3, Q("7.976425 mm")),
])
pocket1 = body.newObject("PartDesign::Pocket", "Pocket")
pocket1.Profile = sketch4
pocket1.Length = 6.954621

doc.recompute()
